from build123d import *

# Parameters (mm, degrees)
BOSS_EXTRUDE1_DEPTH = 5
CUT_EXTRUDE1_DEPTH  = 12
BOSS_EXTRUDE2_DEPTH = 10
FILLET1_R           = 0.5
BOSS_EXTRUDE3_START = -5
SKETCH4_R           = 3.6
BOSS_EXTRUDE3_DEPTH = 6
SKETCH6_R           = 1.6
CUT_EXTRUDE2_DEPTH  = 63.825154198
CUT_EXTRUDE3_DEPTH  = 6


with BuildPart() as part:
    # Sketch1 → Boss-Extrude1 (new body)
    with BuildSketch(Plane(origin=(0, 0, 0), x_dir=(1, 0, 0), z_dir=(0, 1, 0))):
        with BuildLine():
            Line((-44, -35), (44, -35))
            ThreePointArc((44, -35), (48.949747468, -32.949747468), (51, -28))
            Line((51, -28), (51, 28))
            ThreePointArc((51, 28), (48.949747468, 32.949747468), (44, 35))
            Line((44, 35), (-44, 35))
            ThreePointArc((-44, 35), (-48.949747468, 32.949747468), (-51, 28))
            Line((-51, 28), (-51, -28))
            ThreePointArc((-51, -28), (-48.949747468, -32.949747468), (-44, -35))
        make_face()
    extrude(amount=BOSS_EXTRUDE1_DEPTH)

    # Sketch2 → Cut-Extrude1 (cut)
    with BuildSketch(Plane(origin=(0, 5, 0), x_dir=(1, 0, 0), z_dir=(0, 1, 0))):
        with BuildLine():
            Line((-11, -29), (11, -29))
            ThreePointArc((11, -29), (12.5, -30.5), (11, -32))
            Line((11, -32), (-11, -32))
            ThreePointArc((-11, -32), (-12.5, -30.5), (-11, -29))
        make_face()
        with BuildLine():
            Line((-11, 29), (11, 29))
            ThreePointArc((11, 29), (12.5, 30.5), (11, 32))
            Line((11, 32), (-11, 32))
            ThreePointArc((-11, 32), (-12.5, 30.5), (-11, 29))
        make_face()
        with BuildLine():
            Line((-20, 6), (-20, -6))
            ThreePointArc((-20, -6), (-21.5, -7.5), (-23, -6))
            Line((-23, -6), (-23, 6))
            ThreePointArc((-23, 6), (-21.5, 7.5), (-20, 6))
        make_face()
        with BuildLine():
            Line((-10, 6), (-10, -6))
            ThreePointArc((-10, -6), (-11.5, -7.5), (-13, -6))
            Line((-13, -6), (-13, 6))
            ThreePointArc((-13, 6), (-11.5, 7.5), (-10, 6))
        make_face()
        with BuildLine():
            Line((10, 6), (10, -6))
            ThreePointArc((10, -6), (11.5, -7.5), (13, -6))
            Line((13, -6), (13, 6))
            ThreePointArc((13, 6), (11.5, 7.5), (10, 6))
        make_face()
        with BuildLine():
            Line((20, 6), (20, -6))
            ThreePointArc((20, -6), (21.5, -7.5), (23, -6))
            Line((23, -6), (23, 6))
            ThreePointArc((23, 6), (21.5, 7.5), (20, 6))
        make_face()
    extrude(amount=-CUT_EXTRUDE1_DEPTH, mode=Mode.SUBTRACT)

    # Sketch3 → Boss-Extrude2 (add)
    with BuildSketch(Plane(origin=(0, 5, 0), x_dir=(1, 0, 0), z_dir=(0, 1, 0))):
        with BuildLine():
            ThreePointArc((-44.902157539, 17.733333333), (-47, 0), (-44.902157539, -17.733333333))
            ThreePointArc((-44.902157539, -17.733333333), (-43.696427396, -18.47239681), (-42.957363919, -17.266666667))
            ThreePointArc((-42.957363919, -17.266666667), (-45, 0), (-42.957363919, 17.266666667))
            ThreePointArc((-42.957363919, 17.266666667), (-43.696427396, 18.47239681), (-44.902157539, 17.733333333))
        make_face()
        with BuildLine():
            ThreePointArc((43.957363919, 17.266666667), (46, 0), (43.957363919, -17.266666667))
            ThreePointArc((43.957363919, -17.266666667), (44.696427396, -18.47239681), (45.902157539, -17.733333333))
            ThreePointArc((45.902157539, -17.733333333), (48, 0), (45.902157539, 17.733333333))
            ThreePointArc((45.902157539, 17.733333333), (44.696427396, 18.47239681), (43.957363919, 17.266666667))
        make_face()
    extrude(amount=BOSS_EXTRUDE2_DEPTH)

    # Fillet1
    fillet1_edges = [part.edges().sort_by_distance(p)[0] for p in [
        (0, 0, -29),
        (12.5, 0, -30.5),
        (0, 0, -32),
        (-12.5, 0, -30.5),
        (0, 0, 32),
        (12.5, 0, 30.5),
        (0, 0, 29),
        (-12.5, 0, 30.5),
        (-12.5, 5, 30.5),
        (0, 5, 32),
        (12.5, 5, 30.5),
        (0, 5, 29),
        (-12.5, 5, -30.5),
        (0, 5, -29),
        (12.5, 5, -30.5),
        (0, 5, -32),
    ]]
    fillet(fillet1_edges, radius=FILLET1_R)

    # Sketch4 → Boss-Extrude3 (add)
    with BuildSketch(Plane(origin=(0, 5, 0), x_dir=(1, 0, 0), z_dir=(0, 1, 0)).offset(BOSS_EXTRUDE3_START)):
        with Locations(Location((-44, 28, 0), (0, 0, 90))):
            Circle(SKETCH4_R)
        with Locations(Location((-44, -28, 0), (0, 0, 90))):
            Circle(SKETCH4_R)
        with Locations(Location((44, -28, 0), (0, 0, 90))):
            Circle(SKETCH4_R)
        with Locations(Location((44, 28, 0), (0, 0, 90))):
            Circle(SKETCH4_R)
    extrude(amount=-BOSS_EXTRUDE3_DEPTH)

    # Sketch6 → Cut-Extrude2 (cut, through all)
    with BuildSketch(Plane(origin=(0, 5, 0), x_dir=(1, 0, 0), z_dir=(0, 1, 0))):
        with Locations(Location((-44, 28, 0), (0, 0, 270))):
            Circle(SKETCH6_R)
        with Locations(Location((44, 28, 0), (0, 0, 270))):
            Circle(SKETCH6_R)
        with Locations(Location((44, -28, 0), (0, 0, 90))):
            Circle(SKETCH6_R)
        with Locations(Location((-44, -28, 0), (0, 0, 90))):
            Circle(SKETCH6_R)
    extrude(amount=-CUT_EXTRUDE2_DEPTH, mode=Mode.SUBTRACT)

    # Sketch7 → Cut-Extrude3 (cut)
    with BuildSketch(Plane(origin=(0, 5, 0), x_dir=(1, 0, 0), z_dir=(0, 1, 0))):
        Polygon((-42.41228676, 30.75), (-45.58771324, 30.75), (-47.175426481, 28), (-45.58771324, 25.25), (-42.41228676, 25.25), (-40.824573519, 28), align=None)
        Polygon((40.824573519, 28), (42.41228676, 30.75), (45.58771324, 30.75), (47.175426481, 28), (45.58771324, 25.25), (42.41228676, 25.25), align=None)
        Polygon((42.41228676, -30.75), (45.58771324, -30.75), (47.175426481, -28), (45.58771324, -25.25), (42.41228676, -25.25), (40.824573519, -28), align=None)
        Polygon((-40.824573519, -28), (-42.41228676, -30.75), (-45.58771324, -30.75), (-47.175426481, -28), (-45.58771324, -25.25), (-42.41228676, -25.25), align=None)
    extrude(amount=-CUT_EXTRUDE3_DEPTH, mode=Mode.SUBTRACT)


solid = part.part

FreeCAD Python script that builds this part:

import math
import FreeCAD as App
import Part
import Sketcher
Q = App.Units.Quantity


def edges_at(feature, points):
    """Names of the edges that pass closest to the given points."""
    edges = feature.Shape.Edges
    near = lambda p: min(range(len(edges)), key=lambda i: edges[i].distToShape(Part.Vertex(*p))[0])
    return sorted({f"Edge{near(p) + 1}" for p in points})

doc = App.newDocument("Part")
body = doc.addObject("PartDesign::Body", "Body")

# Sketch on XZ plane
sketch1 = body.newObject("Sketcher::SketchObject", "Sketch")
sketch1.AttachmentSupport = (doc.getObject("XZ_Plane"), [""])
sketch1.MapMode = "FlatFace"
sketch1.addGeometry([
    Part.LineSegment(App.Vector(-44, 35, 0), App.Vector(44, 35, 0)),  # 0
    Part.ArcOfCircle(Part.Circle(App.Vector(44, 28, 0), App.Vector(0, 0, 1), 7), math.radians(0), math.radians(90)),  # 1
    Part.LineSegment(App.Vector(51, 28, 0), App.Vector(51, -28, 0)),  # 2
    Part.ArcOfCircle(Part.Circle(App.Vector(44, -28, 0), App.Vector(0, 0, 1), 7), math.radians(-90), math.radians(0)),  # 3
    Part.LineSegment(App.Vector(44, -35, 0), App.Vector(-44, -35, 0)),  # 4
    Part.ArcOfCircle(Part.Circle(App.Vector(-44, -28, 0), App.Vector(0, 0, 1), 7), math.radians(-180), math.radians(-90)),  # 5
    Part.LineSegment(App.Vector(-51, -28, 0), App.Vector(-51, 28, 0)),  # 6
    Part.ArcOfCircle(Part.Circle(App.Vector(-44, 28, 0), App.Vector(0, 0, 1), 7), math.radians(90), math.radians(180)),  # 7
], False)
sketch1.addConstraint([
    Sketcher.Constraint("Tangent", 0, 2, 1, 2),
    Sketcher.Constraint("Tangent", 1, 1, 2, 1),
    Sketcher.Constraint("Tangent", 2, 2, 3, 2),
    Sketcher.Constraint("Tangent", 3, 1, 4, 1),
    Sketcher.Constraint("Tangent", 4, 2, 5, 2),
    Sketcher.Constraint("Tangent", 5, 1, 6, 1),
    Sketcher.Constraint("Tangent", 6, 2, 7, 2),
    Sketcher.Constraint("Tangent", 7, 1, 0, 1),
    Sketcher.Constraint("Horizontal", 0),
    Sketcher.Constraint("Vertical", 2),
    Sketcher.Constraint("Horizontal", 4),
    Sketcher.Constraint("Vertical", 6),
    Sketcher.Constraint("Equal", 1, 3),
    Sketcher.Constraint("Equal", 3, 5),
    Sketcher.Constraint("Equal", 5, 7),
    Sketcher.Constraint("Symmetric", 1, 3, 5, 3, -1, 1),
    Sketcher.Constraint("Radius", 1, Q("7 mm")),
    Sketcher.Constraint("DistanceX", 0, 1, 0, 2, Q("88 mm")),
    Sketcher.Constraint("DistanceY", 2, 2, 2, 1, Q("56 mm")),
])
pad1 = body.newObject("PartDesign::Pad", "Pad")
pad1.Profile = sketch1
pad1.Length = 5
pad1.Reversed = True

# Sketch on XZ plane
sketch2 = body.newObject("Sketcher::SketchObject", "Sketch001")
sketch2.AttachmentSupport = (doc.getObject("XZ_Plane"), [""])
sketch2.MapMode = "FlatFace"
sketch2.AttachmentOffset = App.Placement(App.Vector(0, 0, -5), App.Rotation())
sketch2.addGeometry([
    Part.LineSegment(App.Vector(11, 29, 0), App.Vector(-11, 29, 0)),  # 0
    Part.ArcOfCircle(Part.Circle(App.Vector(-11, 30.5, 0), App.Vector(0, 0, 1), 1.5), math.radians(90), math.radians(270)),  # 1
    Part.LineSegment(App.Vector(-11, 32, 0), App.Vector(11, 32, 0)),  # 2
    Part.ArcOfCircle(Part.Circle(App.Vector(11, 30.5, 0), App.Vector(0, 0, 1), 1.5), math.radians(-90), math.radians(90)),  # 3
    Part.LineSegment(App.Vector(-11, -29, 0), App.Vector(11, -29, 0)),  # 4
    Part.ArcOfCircle(Part.Circle(App.Vector(11, -30.5, 0), App.Vector(0, 0, 1), 1.5), math.radians(-90), math.radians(90)),  # 5
    Part.LineSegment(App.Vector(11, -32, 0), App.Vector(-11, -32, 0)),  # 6
    Part.ArcOfCircle(Part.Circle(App.Vector(-11, -30.5, 0), App.Vector(0, 0, 1), 1.5), math.radians(90), math.radians(270)),  # 7
    Part.LineSegment(App.Vector(-20, 6, 0), App.Vector(-20, -6, 0)),  # 8
    Part.ArcOfCircle(Part.Circle(App.Vector(-21.5, -6, 0), App.Vector(0, 0, 1), 1.5), math.radians(180), math.radians(360)),  # 9
    Part.LineSegment(App.Vector(-23, -6, 0), App.Vector(-23, 6, 0)),  # 10
    Part.ArcOfCircle(Part.Circle(App.Vector(-21.5, 6, 0), App.Vector(0, 0, 1), 1.5), math.radians(0), math.radians(180)),  # 11
    Part.LineSegment(App.Vector(-10, 6, 0), App.Vector(-10, -6, 0)),  # 12
    Part.ArcOfCircle(Part.Circle(App.Vector(-11.5, -6, 0), App.Vector(0, 0, 1), 1.5), math.radians(180), math.radians(360)),  # 13
    Part.LineSegment(App.Vector(-13, -6, 0), App.Vector(-13, 6, 0)),  # 14
    Part.ArcOfCircle(Part.Circle(App.Vector(-11.5, 6, 0), App.Vector(0, 0, 1), 1.5), math.radians(0), math.radians(180)),  # 15
    Part.LineSegment(App.Vector(10, -6, 0), App.Vector(10, 6, 0)),  # 16
    Part.ArcOfCircle(Part.Circle(App.Vector(11.5, 6, 0), App.Vector(0, 0, 1), 1.5), math.radians(0), math.radians(180)),  # 17
    Part.LineSegment(App.Vector(13, 6, 0), App.Vector(13, -6, 0)),  # 18
    Part.ArcOfCircle(Part.Circle(App.Vector(11.5, -6, 0), App.Vector(0, 0, 1), 1.5), math.radians(180), math.radians(360)),  # 19
    Part.LineSegment(App.Vector(20, -6, 0), App.Vector(20, 6, 0)),  # 20
    Part.ArcOfCircle(Part.Circle(App.Vector(21.5, 6, 0), App.Vector(0, 0, 1), 1.5), math.radians(0), math.radians(180)),  # 21
    Part.LineSegment(App.Vector(23, 6, 0), App.Vector(23, -6, 0)),  # 22
    Part.ArcOfCircle(Part.Circle(App.Vector(21.5, -6, 0), App.Vector(0, 0, 1), 1.5), math.radians(180), math.radians(360)),  # 23
], False)
sketch2.addConstraint([
    Sketcher.Constraint("Tangent", 0, 2, 1, 2),
    Sketcher.Constraint("Tangent", 1, 1, 2, 1),
    Sketcher.Constraint("Tangent", 2, 2, 3, 2),
    Sketcher.Constraint("Tangent", 3, 1, 0, 1),
    Sketcher.Constraint("Tangent", 4, 2, 5, 2),
    Sketcher.Constraint("Tangent", 5, 1, 6, 1),
    Sketcher.Constraint("Tangent", 6, 2, 7, 2),
    Sketcher.Constraint("Tangent", 7, 1, 4, 1),
    Sketcher.Constraint("Tangent", 8, 2, 9, 2),
    Sketcher.Constraint("Tangent", 9, 1, 10, 1),
    Sketcher.Constraint("Tangent", 10, 2, 11, 2),
    Sketcher.Constraint("Tangent", 11, 1, 8, 1),
    Sketcher.Constraint("Tangent", 12, 2, 13, 2),
    Sketcher.Constraint("Tangent", 13, 1, 14, 1),
    Sketcher.Constraint("Tangent", 14, 2, 15, 2),
    Sketcher.Constraint("Tangent", 15, 1, 12, 1),
    Sketcher.Constraint("Tangent", 16, 2, 17, 2),
    Sketcher.Constraint("Tangent", 17, 1, 18, 1),
    Sketcher.Constraint("Tangent", 18, 2, 19, 2),
    Sketcher.Constraint("Tangent", 19, 1, 16, 1),
    Sketcher.Constraint("Tangent", 20, 2, 21, 2),
    Sketcher.Constraint("Tangent", 21, 1, 22, 1),
    Sketcher.Constraint("Tangent", 22, 2, 23, 2),
    Sketcher.Constraint("Tangent", 23, 1, 20, 1),
    Sketcher.Constraint("Horizontal", 0),
    Sketcher.Constraint("Horizontal", 2),
    Sketcher.Constraint("Horizontal", 4),
    Sketcher.Constraint("Horizontal", 6),
    Sketcher.Constraint("Vertical", 8),
    Sketcher.Constraint("Vertical", 10),
    Sketcher.Constraint("Vertical", 12),
    Sketcher.Constraint("Vertical", 14),
    Sketcher.Constraint("Vertical", 16),
    Sketcher.Constraint("Vertical", 18),
    Sketcher.Constraint("Vertical", 20),
    Sketcher.Constraint("Vertical", 22),
    Sketcher.Constraint("Equal", 3, 5),
    Sketcher.Constraint("Equal", 7, 9),
    Sketcher.Constraint("Equal", 11, 13),
    Sketcher.Constraint("Equal", 15, 17),
    Sketcher.Constraint("Equal", 19, 21),
    Sketcher.Constraint("Symmetric", 1, 3, 5, 3, -1, 1),
    Sketcher.Constraint("Symmetric", 13, 3, 17, 3, -1, 1),
    Sketcher.Constraint("Symmetric", 9, 3, 21, 3, -1, 1),
    Sketcher.Constraint("Horizontal", 9, 3, 13, 3),
    Sketcher.Constraint("Horizontal", 11, 3, 15, 3),
    Sketcher.Constraint("Horizontal", 15, 3, 17, 3),
    Sketcher.Constraint("Horizontal", 13, 3, 19, 3),
    Sketcher.Constraint("Horizontal", 19, 3, 23, 3),
    Sketcher.Constraint("Vertical", 3, 3, 5, 3),
    Sketcher.Constraint("Vertical", 1, 3, 7, 3),
    Sketcher.Constraint("Radius", 1, Q("1.5 mm")),
    Sketcher.Constraint("DistanceX", 0, 2, 0, 1, Q("22 mm")),
    Sketcher.Constraint("DistanceY", 8, 2, 8, 1, Q("12 mm")),
    Sketcher.Constraint("DistanceY", -1, 1, 0, 2, Q("29 mm")),
    Sketcher.Constraint("DistanceX", 8, 2, -1, 1, Q("20 mm")),
    Sketcher.Constraint("DistanceX", 12, 2, -1, 1, Q("10 mm")),
])
pocket1 = body.newObject("PartDesign::Pocket", "Pocket")
pocket1.Profile = sketch2
pocket1.Length = 12
pocket1.Reversed = True

# Sketch on XZ plane
sketch3 = body.newObject("Sketcher::SketchObject", "Sketch002")
sketch3.AttachmentSupport = (doc.getObject("XZ_Plane"), [""])
sketch3.MapMode = "FlatFace"
sketch3.AttachmentOffset = App.Placement(App.Vector(0, 0, -5), App.Rotation())
sketch3.addGeometry([
    Part.ArcOfCircle(Part.Circle(App.Vector(29, 0, 0), App.Vector(0, 0, 1), 76), math.radians(167), math.radians(193)),  # 0
    Part.ArcOfCircle(Part.Circle(App.Vector(-43.9, 17.5, 0), App.Vector(0, 0, 1), 1), math.radians(-13), math.radians(167)),  # 1
    Part.ArcOfCircle(Part.Circle(App.Vector(29, 0, 0), App.Vector(0, 0, 1), 74), math.radians(167), math.radians(193)),  # 2
    Part.ArcOfCircle(Part.Circle(App.Vector(-43.9, -17.5, 0), App.Vector(0, 0, 1), 1), math.radians(-167), math.radians(13)),  # 3
    Part.ArcOfCircle(Part.Circle(App.Vector(-28, 0, 0), App.Vector(0, 0, 1), 74), math.radians(-13), math.radians(13)),  # 4
    Part.ArcOfCircle(Part.Circle(App.Vector(44.9, 17.5, 0), App.Vector(0, 0, 1), 1), math.radians(13), math.radians(193)),  # 5
    Part.ArcOfCircle(Part.Circle(App.Vector(-28, 0, 0), App.Vector(0, 0, 1), 76), math.radians(-13), math.radians(13)),  # 6
    Part.ArcOfCircle(Part.Circle(App.Vector(44.9, -17.5, 0), App.Vector(0, 0, 1), 1), math.radians(167), math.radians(347)),  # 7
], False)
sketch3.addConstraint([
    Sketcher.Constraint("Tangent", 0, 1, 1, 2),
    Sketcher.Constraint("Tangent", 1, 1, 2, 1),
    Sketcher.Constraint("Tangent", 2, 2, 3, 2),
    Sketcher.Constraint("Tangent", 3, 1, 0, 2),
    Sketcher.Constraint("Tangent", 4, 2, 5, 2),
    Sketcher.Constraint("Tangent", 5, 1, 6, 2),
    Sketcher.Constraint("Tangent", 6, 1, 7, 2),
    Sketcher.Constraint("Tangent", 7, 1, 4, 1),
    Sketcher.Constraint("Coincident", 2, 3, 0, 3),
    Sketcher.Constraint("Coincident", 6, 3, 4, 3),
    Sketcher.Constraint("Equal", 2, 4),
    Sketcher.Constraint("Equal", 3, 5),
    Sketcher.Constraint("Symmetric", 1, 3, 3, 3, -1),
    Sketcher.Constraint("Symmetric", 5, 3, 7, 3, -1),
    Sketcher.Constraint("Horizontal", 1, 3, 5, 3),
    Sketcher.Constraint("Radius", 0, Q("76 mm")),
    Sketcher.Constraint("Radius", 1, Q("1 mm")),
    Sketcher.Constraint("DistanceX", -1, 1, 0, 3, Q("29 mm")),
    Sketcher.Constraint("DistanceX", 4, 3, -1, 1, Q("28 mm")),
    Sketcher.Constraint("DistanceY", 3, 3, 1, 3, Q("35 mm")),
])
pad2 = body.newObject("PartDesign::Pad", "Pad001")
pad2.Profile = sketch3
pad2.Length = 10
pad2.Reversed = True
doc.recompute()

fillet = body.newObject("PartDesign::Fillet", "Fillet")
fillet.Base = (pad2, edges_at(pad2, [
    (0, 0, -29),
    (12.5, 0, -30.5),
    (0, 0, -32),
    (-12.5, 0, -30.5),
    (0, 0, 32),
    (12.5, 0, 30.5),
    (0, 0, 29),
    (-12.5, 0, 30.5),
    (-12.5, 5, 30.5),
    (0, 5, 32),
    (12.5, 5, 30.5),
    (0, 5, 29),
    (-12.5, 5, -30.5),
    (0, 5, -29),
    (12.5, 5, -30.5),
    (0, 5, -32),
]))
fillet.Radius = 0.5

# Sketch on XZ plane
sketch4 = body.newObject("Sketcher::SketchObject", "Sketch003")
sketch4.AttachmentSupport = (doc.getObject("XZ_Plane"), [""])
sketch4.MapMode = "FlatFace"
sketch4.addGeometry([
    Part.Circle(App.Vector(-44, -28, 0), App.Vector(0, 0, 1), 3.6),
    Part.Circle(App.Vector(-44, 28, 0), App.Vector(0, 0, 1), 3.6),
    Part.Circle(App.Vector(44, 28, 0), App.Vector(0, 0, 1), 3.6),
    Part.Circle(App.Vector(44, -28, 0), App.Vector(0, 0, 1), 3.6),
], False)
sketch4.addConstraint([
    Sketcher.Constraint("Equal", 0, 1),
    Sketcher.Constraint("Equal", 1, 2),
    Sketcher.Constraint("Equal", 2, 3),
    Sketcher.Constraint("Symmetric", 0, 3, 2, 3, -1, 1),
    Sketcher.Constraint("Symmetric", 1, 3, 3, 3, -1, 1),
    Sketcher.Constraint("Symmetric", 1, 3, 2, 3, -2),
    Sketcher.Constraint("Diameter", 0, Q("7.2 mm")),
    Sketcher.Constraint("DistanceX", 0, 3, -1, 1, Q("44 mm")),
    Sketcher.Constraint("DistanceY", 0, 3, -1, 1, Q("28 mm")),
])
pad3 = body.newObject("PartDesign::Pad", "Pad002")
pad3.Profile = sketch4
pad3.Length = 6

# Sketch on XZ plane
sketch5 = body.newObject("Sketcher::SketchObject", "Sketch004")
sketch5.AttachmentSupport = (doc.getObject("XZ_Plane"), [""])
sketch5.MapMode = "FlatFace"
sketch5.AttachmentOffset = App.Placement(App.Vector(0, 0, -5), App.Rotation())
sketch5.addGeometry([
    Part.Circle(App.Vector(-44, -28, 0), App.Vector(0, 0, 1), 1.6),
    Part.Circle(App.Vector(44, -28, 0), App.Vector(0, 0, 1), 1.6),
    Part.Circle(App.Vector(44, 28, 0), App.Vector(0, 0, 1), 1.6),
    Part.Circle(App.Vector(-44, 28, 0), App.Vector(0, 0, 1), 1.6),
], False)
sketch5.addConstraint([
    Sketcher.Constraint("Equal", 0, 1),
    Sketcher.Constraint("Equal", 1, 2),
    Sketcher.Constraint("Equal", 2, 3),
    Sketcher.Constraint("Symmetric", 0, 3, 2, 3, -1, 1),
    Sketcher.Constraint("Symmetric", 1, 3, 3, 3, -1, 1),
    Sketcher.Constraint("Symmetric", 0, 3, 1, 3, -2),
    Sketcher.Constraint("Diameter", 0, Q("3.2 mm")),
    Sketcher.Constraint("DistanceX", 0, 3, -1, 1, Q("44 mm")),
    Sketcher.Constraint("DistanceY", 0, 3, -1, 1, Q("28 mm")),
])
pocket2 = body.newObject("PartDesign::Pocket", "Pocket001")
pocket2.Profile = sketch5
pocket2.Type = "ThroughAll"
pocket2.Reversed = True

# Sketch on XZ plane
sketch6 = body.newObject("Sketcher::SketchObject", "Sketch005")
sketch6.AttachmentSupport = (doc.getObject("XZ_Plane"), [""])
sketch6.MapMode = "FlatFace"
sketch6.AttachmentOffset = App.Placement(App.Vector(0, 0, -5), App.Rotation())
sketch6.addGeometry([
    Part.LineSegment(App.Vector(-42.4, -30.8, 0), App.Vector(-45.6, -30.8, 0)),  # 0
    Part.LineSegment(App.Vector(-45.6, -30.8, 0), App.Vector(-47.2, -28, 0)),  # 1
    Part.LineSegment(App.Vector(-47.2, -28, 0), App.Vector(-45.6, -25.2, 0)),  # 2
    Part.LineSegment(App.Vector(-45.6, -25.2, 0), App.Vector(-42.4, -25.2, 0)),  # 3
    Part.LineSegment(App.Vector(-42.4, -25.2, 0), App.Vector(-40.8, -28, 0)),  # 4
    Part.LineSegment(App.Vector(-40.8, -28, 0), App.Vector(-42.4, -30.8, 0)),  # 5
    Part.LineSegment(App.Vector(42.4, -30.8, 0), App.Vector(40.8, -28, 0)),  # 6
    Part.LineSegment(App.Vector(40.8, -28, 0), App.Vector(42.4, -25.2, 0)),  # 7
    Part.LineSegment(App.Vector(42.4, -25.2, 0), App.Vector(45.6, -25.2, 0)),  # 8
    Part.LineSegment(App.Vector(45.6, -25.2, 0), App.Vector(47.2, -28, 0)),  # 9
    Part.LineSegment(App.Vector(47.2, -28, 0), App.Vector(45.6, -30.8, 0)),  # 10
    Part.LineSegment(App.Vector(45.6, -30.8, 0), App.Vector(42.4, -30.8, 0)),  # 11
    Part.LineSegment(App.Vector(42.4, 30.8, 0), App.Vector(45.6, 30.8, 0)),  # 12
    Part.LineSegment(App.Vector(45.6, 30.8, 0), App.Vector(47.2, 28, 0)),  # 13
    Part.LineSegment(App.Vector(47.2, 28, 0), App.Vector(45.6, 25.2, 0)),  # 14
    Part.LineSegment(App.Vector(45.6, 25.2, 0), App.Vector(42.4, 25.2, 0)),  # 15
    Part.LineSegment(App.Vector(42.4, 25.2, 0), App.Vector(40.8, 28, 0)),  # 16
    Part.LineSegment(App.Vector(40.8, 28, 0), App.Vector(42.4, 30.8, 0)),  # 17
    Part.LineSegment(App.Vector(-42.4, 30.8, 0), App.Vector(-40.8, 28, 0)),  # 18
    Part.LineSegment(App.Vector(-40.8, 28, 0), App.Vector(-42.4, 25.2, 0)),  # 19
    Part.LineSegment(App.Vector(-42.4, 25.2, 0), App.Vector(-45.6, 25.2, 0)),  # 20
    Part.LineSegment(App.Vector(-45.6, 25.2, 0), App.Vector(-47.2, 28, 0)),  # 21
    Part.LineSegment(App.Vector(-47.2, 28, 0), App.Vector(-45.6, 30.8, 0)),  # 22
    Part.LineSegment(App.Vector(-45.6, 30.8, 0), App.Vector(-42.4, 30.8, 0)),  # 23
], False)
sketch6.addConstraint([
    Sketcher.Constraint("Coincident", 0, 2, 1, 1),
    Sketcher.Constraint("Coincident", 1, 2, 2, 1),
    Sketcher.Constraint("Coincident", 2, 2, 3, 1),
    Sketcher.Constraint("Coincident", 3, 2, 4, 1),
    Sketcher.Constraint("Coincident", 4, 2, 5, 1),
    Sketcher.Constraint("Coincident", 5, 2, 0, 1),
    Sketcher.Constraint("Coincident", 6, 2, 7, 1),
    Sketcher.Constraint("Coincident", 7, 2, 8, 1),
    Sketcher.Constraint("Coincident", 8, 2, 9, 1),
    Sketcher.Constraint("Coincident", 9, 2, 10, 1),
    Sketcher.Constraint("Coincident", 10, 2, 11, 1),
    Sketcher.Constraint("Coincident", 11, 2, 6, 1),
    Sketcher.Constraint("Coincident", 12, 2, 13, 1),
    Sketcher.Constraint("Coincident", 13, 2, 14, 1),
    Sketcher.Constraint("Coincident", 14, 2, 15, 1),
    Sketcher.Constraint("Coincident", 15, 2, 16, 1),
    Sketcher.Constraint("Coincident", 16, 2, 17, 1),
    Sketcher.Constraint("Coincident", 17, 2, 12, 1),
    Sketcher.Constraint("Coincident", 18, 2, 19, 1),
    Sketcher.Constraint("Coincident", 19, 2, 20, 1),
    Sketcher.Constraint("Coincident", 20, 2, 21, 1),
    Sketcher.Constraint("Coincident", 21, 2, 22, 1),
    Sketcher.Constraint("Coincident", 22, 2, 23, 1),
    Sketcher.Constraint("Coincident", 23, 2, 18, 1),
    Sketcher.Constraint("Horizontal", 0),
    Sketcher.Constraint("Horizontal", 3),
    Sketcher.Constraint("Horizontal", 8),
    Sketcher.Constraint("Horizontal", 11),
    Sketcher.Constraint("Horizontal", 12),
    Sketcher.Constraint("Horizontal", 15),
    Sketcher.Constraint("Horizontal", 20),
    Sketcher.Constraint("Horizontal", 23),
    Sketcher.Constraint("Symmetric", 0, 2, 12, 2, -1, 1),
    Sketcher.Constraint("Symmetric", 1, 2, 13, 2, -1, 1),
    Sketcher.Constraint("Symmetric", 2, 2, 14, 2, -1, 1),
    Sketcher.Constraint("Symmetric", 4, 2, 16, 2, -1, 1),
    Sketcher.Constraint("Symmetric", 6, 2, 18, 2, -1, 1),
    Sketcher.Constraint("Symmetric", 7, 2, 19, 2, -1, 1),
    Sketcher.Constraint("Symmetric", 9, 2, 21, 2, -1, 1),
    Sketcher.Constraint("Symmetric", 10, 2, 22, 2, -1, 1),
    Sketcher.Constraint("Symmetric", 4, 2, 6, 2, -2),
    Sketcher.Constraint("Symmetric", 3, 2, 7, 2, -2),
    Sketcher.Constraint("Symmetric", 1, 2, 9, 2, -2),
    Sketcher.Constraint("Symmetric", 0, 2, 10, 2, -2),
    Sketcher.Constraint("Parallel", 1, 4),
    Sketcher.Constraint("Parallel", 2, 5),
    Sketcher.Constraint("Parallel", 4, 6),
    Sketcher.Constraint("Parallel", 5, 7),
    Sketcher.Constraint("Parallel", 6, 9),
    Sketcher.Constraint("Parallel", 13, 16),
    Sketcher.Constraint("Parallel", 14, 17),
    Sketcher.Constraint("Parallel", 16, 18),
    Sketcher.Constraint("Parallel", 18, 21),
    Sketcher.Constraint("Horizontal", 1, 2, 4, 2),
    Sketcher.Constraint("Vertical", 0, 2, 2, 2),
    Sketcher.Constraint("Angle", 1, Q("120 deg")),
    Sketcher.Constraint("DistanceY", 1, 2, -1, 1, Q("28 mm")),
    Sketcher.Constraint("DistanceX", 2, 2, 7, 2, Q("88 mm")),
    Sketcher.Constraint("DistanceY", 0, 2, 2, 2, Q("5.5 mm")),
    Sketcher.Constraint("DistanceX", 0, 2, 0, 1, Q("3.175426 mm")),
])
pocket3 = body.newObject("PartDesign::Pocket", "Pocket002")
pocket3.Profile = sketch6
pocket3.Length = 6
pocket3.Reversed = True

doc.recompute()
